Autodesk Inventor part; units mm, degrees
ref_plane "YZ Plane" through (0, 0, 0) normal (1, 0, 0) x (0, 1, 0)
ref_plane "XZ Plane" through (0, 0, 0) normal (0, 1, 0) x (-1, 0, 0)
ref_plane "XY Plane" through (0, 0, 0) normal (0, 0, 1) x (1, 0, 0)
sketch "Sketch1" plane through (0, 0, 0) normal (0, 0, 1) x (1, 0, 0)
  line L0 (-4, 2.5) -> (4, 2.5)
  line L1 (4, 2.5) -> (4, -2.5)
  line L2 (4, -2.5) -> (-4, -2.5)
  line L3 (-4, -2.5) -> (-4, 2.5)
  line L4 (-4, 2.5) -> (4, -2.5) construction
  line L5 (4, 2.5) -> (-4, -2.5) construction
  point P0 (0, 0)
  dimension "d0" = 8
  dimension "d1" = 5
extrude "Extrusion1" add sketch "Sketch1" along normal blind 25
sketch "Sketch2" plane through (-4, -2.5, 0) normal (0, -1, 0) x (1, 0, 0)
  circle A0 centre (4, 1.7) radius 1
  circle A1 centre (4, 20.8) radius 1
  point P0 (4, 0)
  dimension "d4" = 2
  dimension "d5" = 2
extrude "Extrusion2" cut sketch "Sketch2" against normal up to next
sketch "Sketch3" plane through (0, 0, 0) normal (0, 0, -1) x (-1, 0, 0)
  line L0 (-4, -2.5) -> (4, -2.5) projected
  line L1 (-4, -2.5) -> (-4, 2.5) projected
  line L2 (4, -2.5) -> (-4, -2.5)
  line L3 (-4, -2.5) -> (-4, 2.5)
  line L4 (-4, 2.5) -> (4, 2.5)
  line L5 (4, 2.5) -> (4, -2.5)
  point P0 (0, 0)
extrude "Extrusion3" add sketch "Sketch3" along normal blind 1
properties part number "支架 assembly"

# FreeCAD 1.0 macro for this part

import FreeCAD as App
import Part
import Sketcher
Q = App.Units.Quantity


def add_polygon(sketch, points):
    """Adds a closed chain of lines whose ends are joined by coincident constraints."""
    first, n = sketch.GeometryCount, len(points)
    for a, b in zip(points, points[1:] + points[:1]):
        sketch.addGeometry(Part.LineSegment(App.Vector(*a, 0), App.Vector(*b, 0)), False)
    for i in range(n):
        sketch.addConstraint(Sketcher.Constraint("Coincident", first + i, 2, first + (i + 1) % n, 1))

doc = App.newDocument("Part")
params = doc.addObject("Spreadsheet::Sheet", "Params")
for row, (alias, value) in enumerate([
    ("sketch1_width", "8 mm"),
    ("sketch1_height", "5 mm"),
    ("pad1_length", "25 mm"),
    ("sketch2_diameter", "2 mm"),
    ("sketch3_width", "8 mm"),
    ("sketch3_height", "5 mm"),
    ("pad2_length", "1 mm"),
], start=1):
    params.set(f"A{row}", alias)
    params.set(f"B{row}", "=" + value)
    params.setAlias(f"B{row}", alias)

body = doc.addObject("PartDesign::Body", "Body")

sketch1 = doc.addObject("Sketcher::SketchObject", "Sketch")
body.addObject(sketch1)
sketch1.AttachmentSupport = (doc.XY_Plane, [""])
sketch1.MapMode = "FlatFace"
add_polygon(sketch1, [(4, 2.5), (-4, 2.5), (-4, -2.5), (4, -2.5)])
sketch1.addConstraint(Sketcher.Constraint("Horizontal", 0))
sketch1.addConstraint(Sketcher.Constraint("Vertical", 1))
sketch1.addConstraint(Sketcher.Constraint("Horizontal", 2))
sketch1.addConstraint(Sketcher.Constraint("Vertical", 3))
sketch1.addConstraint(Sketcher.Constraint("Symmetric", 0, 2, 2, 2, -1, 1))
sketch1.addConstraint(Sketcher.Constraint("DistanceX", 0, 2, 0, 1, Q("8 mm")))
sketch1.addConstraint(Sketcher.Constraint("DistanceY", 1, 2, 1, 1, Q("5 mm")))
sketch1.setExpression("Constraints[9]", "Params.sketch1_width")
sketch1.setExpression("Constraints[10]", "Params.sketch1_height")
pad1 = doc.addObject("PartDesign::Pad", "Pad")
body.addObject(pad1)
pad1.Profile = sketch1
pad1.setExpression("Length", "Params.pad1_length")

sketch2 = doc.addObject("Sketcher::SketchObject", "Sketch001")
body.addObject(sketch2)
sketch2.AttachmentSupport = (doc.XZ_Plane, [""])
sketch2.MapMode = "FlatFace"
sketch2.AttachmentOffset = App.Placement(App.Vector(0, 0, 2.5), App.Rotation())
sketch2.addGeometry(Part.Circle(App.Vector(0, 1.7, 0), App.Vector(0, 0, 1), 1), False)
sketch2.addGeometry(Part.Circle(App.Vector(0, 20.8, 0), App.Vector(0, 0, 1), 1), False)
sketch2.addConstraint(Sketcher.Constraint("Equal", 0, 1))
sketch2.addConstraint(Sketcher.Constraint("PointOnObject", 0, 3, -2))
sketch2.addConstraint(Sketcher.Constraint("PointOnObject", 1, 3, -2))
sketch2.addConstraint(Sketcher.Constraint("Diameter", 0, Q("2 mm")))
sketch2.addConstraint(Sketcher.Constraint("DistanceY", -1, 1, 0, 3, Q("1.7 mm")))
sketch2.addConstraint(Sketcher.Constraint("DistanceY", -1, 1, 1, 3, Q("20.8 mm")))
sketch2.setExpression("Constraints[3]", "Params.sketch2_diameter")
pocket1 = doc.addObject("PartDesign::Pocket", "Pocket")
body.addObject(pocket1)
pocket1.Profile = sketch2
pocket1.Type = "UpToFirst"

sketch3 = doc.addObject("Sketcher::SketchObject", "Sketch002")
body.addObject(sketch3)
sketch3.AttachmentSupport = (doc.XY_Plane, [""])
sketch3.MapMode = "FlatFace"
add_polygon(sketch3, [(4, 2.5), (4, -2.5), (-4, -2.5), (-4, 2.5)])
sketch3.addConstraint(Sketcher.Constraint("Vertical", 0))
sketch3.addConstraint(Sketcher.Constraint("Horizontal", 1))
sketch3.addConstraint(Sketcher.Constraint("Vertical", 2))
sketch3.addConstraint(Sketcher.Constraint("Horizontal", 3))
sketch3.addConstraint(Sketcher.Constraint("Symmetric", 0, 2, 2, 2, -1, 1))
sketch3.addConstraint(Sketcher.Constraint("DistanceX", 1, 2, 1, 1, Q("8 mm")))
sketch3.addConstraint(Sketcher.Constraint("DistanceY", 0, 2, 0, 1, Q("5 mm")))
sketch3.setExpression("Constraints[9]", "Params.sketch3_width")
sketch3.setExpression("Constraints[10]", "Params.sketch3_height")
pad2 = doc.addObject("PartDesign::Pad", "Pad001")
body.addObject(pad2)
pad2.Profile = sketch3
pad2.setExpression("Length", "Params.pad2_length")
pad2.Reversed = True

doc.recompute()
